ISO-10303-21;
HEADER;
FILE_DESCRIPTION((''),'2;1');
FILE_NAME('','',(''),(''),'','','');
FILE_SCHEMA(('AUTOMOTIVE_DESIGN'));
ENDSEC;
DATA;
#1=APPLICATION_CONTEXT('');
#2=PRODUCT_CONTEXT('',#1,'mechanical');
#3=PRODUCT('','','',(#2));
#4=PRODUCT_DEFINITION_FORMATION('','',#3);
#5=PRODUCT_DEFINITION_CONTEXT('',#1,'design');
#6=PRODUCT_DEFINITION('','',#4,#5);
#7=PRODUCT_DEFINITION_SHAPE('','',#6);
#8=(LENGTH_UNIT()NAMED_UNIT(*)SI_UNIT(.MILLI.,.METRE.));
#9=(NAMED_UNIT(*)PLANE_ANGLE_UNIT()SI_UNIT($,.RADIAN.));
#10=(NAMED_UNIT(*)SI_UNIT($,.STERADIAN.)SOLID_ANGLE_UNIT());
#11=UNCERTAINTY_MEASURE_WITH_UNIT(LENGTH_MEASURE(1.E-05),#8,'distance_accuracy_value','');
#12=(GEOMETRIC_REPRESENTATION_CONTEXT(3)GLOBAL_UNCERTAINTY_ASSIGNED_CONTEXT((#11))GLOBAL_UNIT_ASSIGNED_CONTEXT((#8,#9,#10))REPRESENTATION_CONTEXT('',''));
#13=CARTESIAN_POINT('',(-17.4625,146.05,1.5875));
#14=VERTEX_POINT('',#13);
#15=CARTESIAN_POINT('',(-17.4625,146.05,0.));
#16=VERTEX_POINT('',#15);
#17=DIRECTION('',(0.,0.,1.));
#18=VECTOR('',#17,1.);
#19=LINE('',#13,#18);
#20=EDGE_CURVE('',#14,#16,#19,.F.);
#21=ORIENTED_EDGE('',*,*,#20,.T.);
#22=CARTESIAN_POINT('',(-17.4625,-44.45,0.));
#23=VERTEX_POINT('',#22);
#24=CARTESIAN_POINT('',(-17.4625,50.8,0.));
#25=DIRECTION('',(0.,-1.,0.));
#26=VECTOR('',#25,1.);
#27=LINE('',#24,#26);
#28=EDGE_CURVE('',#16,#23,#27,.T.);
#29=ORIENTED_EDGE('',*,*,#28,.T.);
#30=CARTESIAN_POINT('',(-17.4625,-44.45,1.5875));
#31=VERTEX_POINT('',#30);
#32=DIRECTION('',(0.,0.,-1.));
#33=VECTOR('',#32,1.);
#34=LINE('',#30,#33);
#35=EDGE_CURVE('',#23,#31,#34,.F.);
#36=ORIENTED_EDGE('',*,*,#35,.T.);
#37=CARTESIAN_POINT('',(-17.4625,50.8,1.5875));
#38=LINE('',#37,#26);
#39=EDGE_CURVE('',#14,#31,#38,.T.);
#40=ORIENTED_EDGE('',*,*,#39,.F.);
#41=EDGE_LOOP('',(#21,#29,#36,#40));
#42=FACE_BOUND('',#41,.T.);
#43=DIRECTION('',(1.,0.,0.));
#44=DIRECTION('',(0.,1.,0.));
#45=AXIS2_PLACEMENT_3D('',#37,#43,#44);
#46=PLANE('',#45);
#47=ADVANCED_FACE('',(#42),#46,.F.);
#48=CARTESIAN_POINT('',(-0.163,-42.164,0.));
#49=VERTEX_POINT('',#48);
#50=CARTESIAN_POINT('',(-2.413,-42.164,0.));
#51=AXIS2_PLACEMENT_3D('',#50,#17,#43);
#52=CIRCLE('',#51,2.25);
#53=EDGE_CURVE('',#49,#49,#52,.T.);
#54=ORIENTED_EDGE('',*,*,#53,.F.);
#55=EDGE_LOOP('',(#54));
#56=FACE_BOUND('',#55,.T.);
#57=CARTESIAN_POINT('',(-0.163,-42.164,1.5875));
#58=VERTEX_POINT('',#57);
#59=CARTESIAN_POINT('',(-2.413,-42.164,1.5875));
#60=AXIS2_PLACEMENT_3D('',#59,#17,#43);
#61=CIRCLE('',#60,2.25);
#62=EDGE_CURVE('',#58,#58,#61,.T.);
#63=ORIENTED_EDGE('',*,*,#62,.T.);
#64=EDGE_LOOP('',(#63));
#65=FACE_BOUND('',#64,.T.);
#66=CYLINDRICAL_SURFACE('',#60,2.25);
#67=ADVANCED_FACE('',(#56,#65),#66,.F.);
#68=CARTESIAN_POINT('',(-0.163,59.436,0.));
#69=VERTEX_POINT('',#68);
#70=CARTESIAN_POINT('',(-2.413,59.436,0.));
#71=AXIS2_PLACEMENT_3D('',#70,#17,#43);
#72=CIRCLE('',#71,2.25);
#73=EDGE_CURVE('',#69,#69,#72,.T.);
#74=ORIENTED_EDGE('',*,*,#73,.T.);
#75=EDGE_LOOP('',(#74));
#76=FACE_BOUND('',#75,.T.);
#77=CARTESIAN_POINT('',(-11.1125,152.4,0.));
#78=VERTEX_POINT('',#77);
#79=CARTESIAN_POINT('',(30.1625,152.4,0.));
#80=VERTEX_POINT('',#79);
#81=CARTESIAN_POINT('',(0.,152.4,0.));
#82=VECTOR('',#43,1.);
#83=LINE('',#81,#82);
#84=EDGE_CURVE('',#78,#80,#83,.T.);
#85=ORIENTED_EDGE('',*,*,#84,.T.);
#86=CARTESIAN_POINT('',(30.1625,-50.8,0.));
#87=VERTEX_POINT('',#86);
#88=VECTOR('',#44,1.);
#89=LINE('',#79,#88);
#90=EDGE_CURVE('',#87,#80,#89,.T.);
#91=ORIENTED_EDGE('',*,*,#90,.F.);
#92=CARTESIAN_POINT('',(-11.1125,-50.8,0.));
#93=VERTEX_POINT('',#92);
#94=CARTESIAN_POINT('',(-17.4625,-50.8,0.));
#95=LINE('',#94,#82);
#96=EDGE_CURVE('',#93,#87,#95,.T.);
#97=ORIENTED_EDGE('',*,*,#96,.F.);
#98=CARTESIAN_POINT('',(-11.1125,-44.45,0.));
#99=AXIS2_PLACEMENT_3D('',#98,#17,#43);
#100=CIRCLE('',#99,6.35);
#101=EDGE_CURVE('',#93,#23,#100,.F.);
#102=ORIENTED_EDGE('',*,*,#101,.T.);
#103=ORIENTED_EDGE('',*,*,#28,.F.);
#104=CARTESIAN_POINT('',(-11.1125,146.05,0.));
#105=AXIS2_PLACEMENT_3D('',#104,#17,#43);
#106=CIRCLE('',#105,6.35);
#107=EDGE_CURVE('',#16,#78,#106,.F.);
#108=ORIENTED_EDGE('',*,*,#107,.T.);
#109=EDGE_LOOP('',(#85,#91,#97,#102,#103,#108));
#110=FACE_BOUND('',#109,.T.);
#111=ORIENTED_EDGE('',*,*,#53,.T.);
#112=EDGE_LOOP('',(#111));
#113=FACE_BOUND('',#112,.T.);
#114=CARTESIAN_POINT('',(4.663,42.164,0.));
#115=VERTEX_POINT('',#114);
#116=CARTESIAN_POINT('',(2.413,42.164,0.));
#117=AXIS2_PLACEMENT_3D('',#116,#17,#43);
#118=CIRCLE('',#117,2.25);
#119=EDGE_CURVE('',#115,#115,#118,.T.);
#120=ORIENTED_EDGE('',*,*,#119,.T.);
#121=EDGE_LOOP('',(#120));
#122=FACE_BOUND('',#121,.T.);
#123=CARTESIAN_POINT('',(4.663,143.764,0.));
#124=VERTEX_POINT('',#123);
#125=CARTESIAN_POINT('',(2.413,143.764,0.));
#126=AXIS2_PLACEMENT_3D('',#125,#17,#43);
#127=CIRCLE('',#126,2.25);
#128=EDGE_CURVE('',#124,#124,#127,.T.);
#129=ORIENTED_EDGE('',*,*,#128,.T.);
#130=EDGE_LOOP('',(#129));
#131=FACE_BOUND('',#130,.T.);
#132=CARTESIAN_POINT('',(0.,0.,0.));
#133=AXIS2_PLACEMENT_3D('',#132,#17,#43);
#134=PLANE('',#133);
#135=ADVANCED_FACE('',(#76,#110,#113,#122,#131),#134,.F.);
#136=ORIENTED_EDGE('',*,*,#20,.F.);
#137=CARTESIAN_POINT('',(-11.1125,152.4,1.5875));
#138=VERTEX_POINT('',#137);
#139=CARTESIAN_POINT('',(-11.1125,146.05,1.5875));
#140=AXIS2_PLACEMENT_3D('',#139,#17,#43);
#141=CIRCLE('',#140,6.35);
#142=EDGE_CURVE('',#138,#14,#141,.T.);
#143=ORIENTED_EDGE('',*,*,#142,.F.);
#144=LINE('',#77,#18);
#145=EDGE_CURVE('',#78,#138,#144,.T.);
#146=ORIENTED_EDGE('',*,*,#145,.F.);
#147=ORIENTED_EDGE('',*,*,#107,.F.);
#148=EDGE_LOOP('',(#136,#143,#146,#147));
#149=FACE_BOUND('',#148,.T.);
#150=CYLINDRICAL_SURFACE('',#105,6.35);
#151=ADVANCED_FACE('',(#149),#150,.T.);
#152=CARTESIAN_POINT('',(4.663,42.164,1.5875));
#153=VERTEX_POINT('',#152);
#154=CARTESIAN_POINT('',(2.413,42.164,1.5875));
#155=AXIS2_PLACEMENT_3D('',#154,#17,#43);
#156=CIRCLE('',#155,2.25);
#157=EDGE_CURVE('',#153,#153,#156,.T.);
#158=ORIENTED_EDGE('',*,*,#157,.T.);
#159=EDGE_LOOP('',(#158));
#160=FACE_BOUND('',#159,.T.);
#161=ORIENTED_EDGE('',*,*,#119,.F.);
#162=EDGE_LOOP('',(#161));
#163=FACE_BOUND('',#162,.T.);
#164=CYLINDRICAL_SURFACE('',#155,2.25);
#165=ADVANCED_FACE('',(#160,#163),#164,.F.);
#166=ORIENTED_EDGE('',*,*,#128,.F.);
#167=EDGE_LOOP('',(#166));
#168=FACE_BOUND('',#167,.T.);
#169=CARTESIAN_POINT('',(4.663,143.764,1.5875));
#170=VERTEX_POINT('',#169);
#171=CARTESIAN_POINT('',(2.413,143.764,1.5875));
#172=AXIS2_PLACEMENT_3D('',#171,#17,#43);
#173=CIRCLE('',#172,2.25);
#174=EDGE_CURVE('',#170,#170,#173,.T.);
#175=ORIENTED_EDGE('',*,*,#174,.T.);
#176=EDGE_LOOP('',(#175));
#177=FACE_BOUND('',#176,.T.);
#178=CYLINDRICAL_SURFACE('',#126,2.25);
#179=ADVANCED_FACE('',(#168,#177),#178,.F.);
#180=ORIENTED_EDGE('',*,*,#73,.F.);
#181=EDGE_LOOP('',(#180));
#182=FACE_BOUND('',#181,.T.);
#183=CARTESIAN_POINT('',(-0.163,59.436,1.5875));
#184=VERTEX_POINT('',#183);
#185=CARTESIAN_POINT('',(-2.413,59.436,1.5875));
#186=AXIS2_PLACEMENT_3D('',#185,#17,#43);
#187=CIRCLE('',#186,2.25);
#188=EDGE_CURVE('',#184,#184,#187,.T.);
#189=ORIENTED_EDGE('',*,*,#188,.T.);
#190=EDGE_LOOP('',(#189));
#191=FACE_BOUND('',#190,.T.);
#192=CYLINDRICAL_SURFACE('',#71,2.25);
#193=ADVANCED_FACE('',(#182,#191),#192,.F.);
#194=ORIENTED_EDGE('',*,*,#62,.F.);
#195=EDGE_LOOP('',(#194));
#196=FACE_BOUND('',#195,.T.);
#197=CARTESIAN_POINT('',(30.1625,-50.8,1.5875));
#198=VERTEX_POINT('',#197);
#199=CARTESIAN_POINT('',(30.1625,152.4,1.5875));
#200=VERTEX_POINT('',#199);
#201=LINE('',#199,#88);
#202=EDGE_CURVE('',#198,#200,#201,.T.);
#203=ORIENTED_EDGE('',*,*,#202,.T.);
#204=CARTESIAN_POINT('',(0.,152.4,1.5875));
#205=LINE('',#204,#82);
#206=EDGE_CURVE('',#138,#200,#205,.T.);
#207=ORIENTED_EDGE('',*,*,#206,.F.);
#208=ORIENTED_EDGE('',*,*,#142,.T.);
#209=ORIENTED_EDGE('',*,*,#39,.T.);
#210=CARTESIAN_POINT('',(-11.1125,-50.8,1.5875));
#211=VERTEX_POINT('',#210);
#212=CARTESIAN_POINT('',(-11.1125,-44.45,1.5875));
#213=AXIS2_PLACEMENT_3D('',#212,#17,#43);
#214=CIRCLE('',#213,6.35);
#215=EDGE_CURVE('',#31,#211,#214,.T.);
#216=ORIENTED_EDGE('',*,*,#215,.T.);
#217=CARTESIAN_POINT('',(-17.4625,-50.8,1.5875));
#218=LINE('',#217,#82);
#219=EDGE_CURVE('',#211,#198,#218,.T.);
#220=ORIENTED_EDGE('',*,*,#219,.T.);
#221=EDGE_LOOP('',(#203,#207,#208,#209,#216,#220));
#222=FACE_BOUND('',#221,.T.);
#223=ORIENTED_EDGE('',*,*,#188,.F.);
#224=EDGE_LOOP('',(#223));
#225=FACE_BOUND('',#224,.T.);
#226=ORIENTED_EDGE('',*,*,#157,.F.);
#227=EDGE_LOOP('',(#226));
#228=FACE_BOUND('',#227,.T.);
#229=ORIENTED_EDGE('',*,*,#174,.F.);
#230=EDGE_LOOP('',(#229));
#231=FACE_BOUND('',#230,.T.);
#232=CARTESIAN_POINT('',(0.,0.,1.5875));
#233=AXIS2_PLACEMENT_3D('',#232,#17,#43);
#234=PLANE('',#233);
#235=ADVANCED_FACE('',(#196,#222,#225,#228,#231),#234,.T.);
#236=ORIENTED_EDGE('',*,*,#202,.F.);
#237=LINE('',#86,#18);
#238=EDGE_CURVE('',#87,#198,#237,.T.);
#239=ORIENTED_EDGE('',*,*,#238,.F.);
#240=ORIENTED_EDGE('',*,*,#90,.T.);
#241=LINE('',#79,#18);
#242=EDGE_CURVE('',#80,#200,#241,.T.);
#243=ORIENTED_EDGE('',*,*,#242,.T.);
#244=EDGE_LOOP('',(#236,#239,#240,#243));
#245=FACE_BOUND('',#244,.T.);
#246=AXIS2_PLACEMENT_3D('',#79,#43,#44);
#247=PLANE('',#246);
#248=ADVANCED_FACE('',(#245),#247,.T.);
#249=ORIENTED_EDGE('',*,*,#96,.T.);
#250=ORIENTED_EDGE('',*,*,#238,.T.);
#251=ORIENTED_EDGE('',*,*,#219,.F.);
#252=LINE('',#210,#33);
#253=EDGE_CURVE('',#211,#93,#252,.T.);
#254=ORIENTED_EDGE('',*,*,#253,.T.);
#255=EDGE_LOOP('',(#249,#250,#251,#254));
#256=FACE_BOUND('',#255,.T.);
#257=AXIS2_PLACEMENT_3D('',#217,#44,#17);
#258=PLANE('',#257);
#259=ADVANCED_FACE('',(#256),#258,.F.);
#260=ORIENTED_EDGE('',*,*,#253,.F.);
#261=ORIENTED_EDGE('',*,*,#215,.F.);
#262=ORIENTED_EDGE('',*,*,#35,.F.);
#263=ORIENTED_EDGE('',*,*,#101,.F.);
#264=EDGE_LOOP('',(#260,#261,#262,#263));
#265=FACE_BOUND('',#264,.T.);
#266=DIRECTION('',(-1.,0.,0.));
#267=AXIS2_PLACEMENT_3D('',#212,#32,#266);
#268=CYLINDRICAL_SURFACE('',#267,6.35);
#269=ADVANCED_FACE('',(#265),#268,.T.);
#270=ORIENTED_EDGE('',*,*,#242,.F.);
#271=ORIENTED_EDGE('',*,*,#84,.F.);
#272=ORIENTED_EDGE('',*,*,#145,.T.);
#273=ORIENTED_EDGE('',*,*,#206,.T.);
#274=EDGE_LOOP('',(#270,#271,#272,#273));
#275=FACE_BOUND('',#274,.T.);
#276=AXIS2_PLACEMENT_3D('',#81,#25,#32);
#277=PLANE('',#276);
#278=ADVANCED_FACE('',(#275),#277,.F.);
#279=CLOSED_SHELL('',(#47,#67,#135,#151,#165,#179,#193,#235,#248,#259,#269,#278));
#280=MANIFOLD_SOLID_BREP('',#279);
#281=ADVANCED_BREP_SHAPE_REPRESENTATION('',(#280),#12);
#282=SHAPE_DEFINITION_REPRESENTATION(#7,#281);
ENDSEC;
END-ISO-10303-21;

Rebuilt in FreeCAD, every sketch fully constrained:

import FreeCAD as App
import Part
import Sketcher
from FreeCAD import Vector
Q = App.Units.Quantity


def edges_at(feature, points):
    """Names of the edges that pass closest to the given points."""
    edges = feature.Shape.Edges
    near = lambda p: min(range(len(edges)), key=lambda i: edges[i].distToShape(Part.Vertex(*p))[0])
    return sorted({f"Edge{near(p) + 1}" for p in points})


def add_polygon(sketch, points):
    """Adds a closed chain of lines whose ends are joined by coincident constraints."""
    first, n = sketch.GeometryCount, len(points)
    for a, b in zip(points, points[1:] + points[:1]):
        sketch.addGeometry(Part.LineSegment(App.Vector(*a, 0), App.Vector(*b, 0)), False)
    for i in range(n):
        sketch.addConstraint(Sketcher.Constraint("Coincident", first + i, 2, first + (i + 1) % n, 1))

doc = App.newDocument("Part")
params = doc.addObject("Spreadsheet::Sheet", "Params")
for row, (alias, value) in enumerate([
    ("sketch1_height", "4 in"),
    ("sketch1_width", "1.375 in"),
    ("pad1_length", "0.0625 in"),
    ("hole_diameter", "4.5 mm"),
    ("sketch3_height", "8 in"),
    ("sketch3_width", "1.375 in"),
    ("pad2_length", "0.0625 in"),
    ("sketch4_height", "8 in"),
    ("sketch4_width", "0.5 in"),
    ("pad3_length", "0.0625 in"),
    ("fillet_radius", "0.25 in"),
], start=1):
    params.set(f"A{row}", alias)
    params.set(f"B{row}", "=" + value)
    params.setAlias(f"B{row}", alias)

body = doc.addObject("PartDesign::Body", "Body")

sketch1 = body.newObject("Sketcher::SketchObject", "Sketch")
sketch1.AttachmentSupport = (doc.getObject("XY_Plane"), [""])
sketch1.MapMode = "FlatFace"
add_polygon(sketch1, [(-17, 51), (-17, -51), (17, -51), (17, 51)])
sketch1.addConstraint(Sketcher.Constraint("Vertical", 0))
sketch1.addConstraint(Sketcher.Constraint("Horizontal", 1))
sketch1.addConstraint(Sketcher.Constraint("Vertical", 2))
sketch1.addConstraint(Sketcher.Constraint("Horizontal", 3))
sketch1.addConstraint(Sketcher.Constraint("Symmetric", 0, 2, 2, 2, -1, 1))
sketch1.addConstraint(Sketcher.Constraint("DistanceY", 0, 2, 0, 1, Q("4 in")))
sketch1.addConstraint(Sketcher.Constraint("DistanceX", 1, 1, 1, 2, Q("1.375 in")))
sketch1.setExpression("Constraints[9]", "Params.sketch1_height")
sketch1.setExpression("Constraints[10]", "Params.sketch1_width")
pad1 = body.newObject("PartDesign::Pad", "Pad")
pad1.Profile = sketch1
pad1.setExpression("Length", "Params.pad1_length")

sketch2 = body.newObject("Sketcher::SketchObject", "Sketch001")
sketch2.AttachmentSupport = (doc.getObject("XY_Plane"), [""])
sketch2.MapMode = "FlatFace"
sketch2.AttachmentOffset = App.Placement(Vector(0, 0, 0.0625 * 25.4), App.Rotation())
sketch2.addGeometry(Part.Circle(Vector(-2.4, -42.2, 0), Vector(0, 0, 1), 2.2), False)
sketch2.addGeometry(Part.Circle(Vector(2.4, 42.2, 0), Vector(0, 0, 1), 2.2), False)
sketch2.addConstraint(Sketcher.Constraint("Equal", 0, 1))
sketch2.addConstraint(Sketcher.Constraint("Symmetric", 0, 3, 1, 3, -1, 1))
sketch2.addConstraint(Sketcher.Constraint("Diameter", 0, Q("4.5 mm")))
sketch2.addConstraint(Sketcher.Constraint("DistanceY", 0, 3, -1, 1, Q("1.66 in")))
sketch2.addConstraint(Sketcher.Constraint("DistanceX", 0, 3, 1, 3, Q("0.19 in")))
doc.recompute()
hole = body.newObject("PartDesign::Hole", "Hole")
hole.Profile = sketch2
hole.ThreadType = "None"
hole.setExpression("Diameter", "Params.hole_diameter")
hole.DepthType = "ThroughAll"

sketch3 = body.newObject("Sketcher::SketchObject", "Sketch002")
sketch3.AttachmentSupport = (doc.getObject("XY_Plane"), [""])
sketch3.MapMode = "FlatFace"
add_polygon(sketch3, [(-17.5, 152.4), (-17.5, -50.8), (17.5, -50.8), (17.5, 152.4)])
sketch3.addGeometry(Part.Circle(Vector(-2.4, 59.4, 0), Vector(0, 0, 1), 2.2), False)
sketch3.addGeometry(Part.Circle(Vector(2.4, 143.8, 0), Vector(0, 0, 1), 2.2), False)
sketch3.addGeometry(Part.Circle(Vector(2.4, 42.2, 0), Vector(0, 0, 1), 2.2), False)
sketch3.addGeometry(Part.Circle(Vector(-2.4, -42.2, 0), Vector(0, 0, 1), 2.2), False)
sketch3.addConstraint(Sketcher.Constraint("Vertical", 0))
sketch3.addConstraint(Sketcher.Constraint("Horizontal", 1))
sketch3.addConstraint(Sketcher.Constraint("Vertical", 2))
sketch3.addConstraint(Sketcher.Constraint("Horizontal", 3))
sketch3.addConstraint(Sketcher.Constraint("Equal", 4, 5))
sketch3.addConstraint(Sketcher.Constraint("Equal", 5, 6))
sketch3.addConstraint(Sketcher.Constraint("Equal", 6, 7))
sketch3.addConstraint(Sketcher.Constraint("Symmetric", 6, 3, 7, 3, -1, 1))
sketch3.addConstraint(Sketcher.Constraint("Vertical", 5, 3, 6, 3))
sketch3.addConstraint(Sketcher.Constraint("Vertical", 4, 3, 7, 3))
sketch3.addConstraint(Sketcher.Constraint("DistanceY", 0, 2, 0, 1, Q("8 in")))
sketch3.addConstraint(Sketcher.Constraint("DistanceY", 0, 2, -1, 1, Q("2 in")))
sketch3.addConstraint(Sketcher.Constraint("DistanceY", 6, 3, 5, 3, Q("4 in")))
sketch3.addConstraint(Sketcher.Constraint("DistanceY", 7, 3, 4, 3, Q("4 in")))
sketch3.addConstraint(Sketcher.Constraint("Diameter", 4, Q("4.5 mm")))
sketch3.addConstraint(Sketcher.Constraint("DistanceX", 1, 1, 1, 2, Q("1.375 in")))
sketch3.addConstraint(Sketcher.Constraint("DistanceY", -1, 1, 4, 3, Q("2.34 in")))
sketch3.addConstraint(Sketcher.Constraint("DistanceX", 4, 3, 5, 3, Q("0.19 in")))
sketch3.addConstraint(Sketcher.Constraint("DistanceX", 0, 2, -1, 1, Q("0.6875 in")))
sketch3.setExpression("Constraints[14]", "Params.sketch3_height")
sketch3.setExpression("Constraints[19]", "Params.sketch3_width")
pad2 = body.newObject("PartDesign::Pad", "Pad001")
pad2.Profile = sketch3
pad2.setExpression("Length", "Params.pad2_length")

sketch4 = body.newObject("Sketcher::SketchObject", "Sketch003")
sketch4.AttachmentSupport = (doc.getObject("XY_Plane"), [""])
sketch4.MapMode = "FlatFace"
sketch4.AttachmentOffset = App.Placement(Vector(0, 0, 0.0625 * 25.4), App.Rotation())
add_polygon(sketch4, [(17, 152), (17, -51), (30, -51), (30, 152)])
sketch4.addConstraint(Sketcher.Constraint("Vertical", 0))
sketch4.addConstraint(Sketcher.Constraint("Horizontal", 1))
sketch4.addConstraint(Sketcher.Constraint("Vertical", 2))
sketch4.addConstraint(Sketcher.Constraint("Horizontal", 3))
sketch4.addConstraint(Sketcher.Constraint("DistanceY", 0, 2, 0, 1, Q("8 in")))
sketch4.addConstraint(Sketcher.Constraint("DistanceX", 1, 1, 1, 2, Q("0.5 in")))
sketch4.addConstraint(Sketcher.Constraint("DistanceY", 0, 2, -1, 1, Q("2 in")))
sketch4.addConstraint(Sketcher.Constraint("DistanceX", -1, 1, 0, 2, Q("0.6875 in")))
sketch4.setExpression("Constraints[8]", "Params.sketch4_height")
sketch4.setExpression("Constraints[9]", "Params.sketch4_width")
pad3 = body.newObject("PartDesign::Pad", "Pad002")
pad3.Profile = sketch4
pad3.setExpression("Length", "Params.pad3_length")
pad3.Reversed = True
doc.recompute()

fillet = body.newObject("PartDesign::Fillet", "Fillet")
fillet.Base = (pad3, edges_at(pad3, [(-17.462, 152.4, 0.794), (-17.462, -50.8, 0.794)]))
fillet.setExpression("Radius", "Params.fillet_radius")

doc.recompute()
